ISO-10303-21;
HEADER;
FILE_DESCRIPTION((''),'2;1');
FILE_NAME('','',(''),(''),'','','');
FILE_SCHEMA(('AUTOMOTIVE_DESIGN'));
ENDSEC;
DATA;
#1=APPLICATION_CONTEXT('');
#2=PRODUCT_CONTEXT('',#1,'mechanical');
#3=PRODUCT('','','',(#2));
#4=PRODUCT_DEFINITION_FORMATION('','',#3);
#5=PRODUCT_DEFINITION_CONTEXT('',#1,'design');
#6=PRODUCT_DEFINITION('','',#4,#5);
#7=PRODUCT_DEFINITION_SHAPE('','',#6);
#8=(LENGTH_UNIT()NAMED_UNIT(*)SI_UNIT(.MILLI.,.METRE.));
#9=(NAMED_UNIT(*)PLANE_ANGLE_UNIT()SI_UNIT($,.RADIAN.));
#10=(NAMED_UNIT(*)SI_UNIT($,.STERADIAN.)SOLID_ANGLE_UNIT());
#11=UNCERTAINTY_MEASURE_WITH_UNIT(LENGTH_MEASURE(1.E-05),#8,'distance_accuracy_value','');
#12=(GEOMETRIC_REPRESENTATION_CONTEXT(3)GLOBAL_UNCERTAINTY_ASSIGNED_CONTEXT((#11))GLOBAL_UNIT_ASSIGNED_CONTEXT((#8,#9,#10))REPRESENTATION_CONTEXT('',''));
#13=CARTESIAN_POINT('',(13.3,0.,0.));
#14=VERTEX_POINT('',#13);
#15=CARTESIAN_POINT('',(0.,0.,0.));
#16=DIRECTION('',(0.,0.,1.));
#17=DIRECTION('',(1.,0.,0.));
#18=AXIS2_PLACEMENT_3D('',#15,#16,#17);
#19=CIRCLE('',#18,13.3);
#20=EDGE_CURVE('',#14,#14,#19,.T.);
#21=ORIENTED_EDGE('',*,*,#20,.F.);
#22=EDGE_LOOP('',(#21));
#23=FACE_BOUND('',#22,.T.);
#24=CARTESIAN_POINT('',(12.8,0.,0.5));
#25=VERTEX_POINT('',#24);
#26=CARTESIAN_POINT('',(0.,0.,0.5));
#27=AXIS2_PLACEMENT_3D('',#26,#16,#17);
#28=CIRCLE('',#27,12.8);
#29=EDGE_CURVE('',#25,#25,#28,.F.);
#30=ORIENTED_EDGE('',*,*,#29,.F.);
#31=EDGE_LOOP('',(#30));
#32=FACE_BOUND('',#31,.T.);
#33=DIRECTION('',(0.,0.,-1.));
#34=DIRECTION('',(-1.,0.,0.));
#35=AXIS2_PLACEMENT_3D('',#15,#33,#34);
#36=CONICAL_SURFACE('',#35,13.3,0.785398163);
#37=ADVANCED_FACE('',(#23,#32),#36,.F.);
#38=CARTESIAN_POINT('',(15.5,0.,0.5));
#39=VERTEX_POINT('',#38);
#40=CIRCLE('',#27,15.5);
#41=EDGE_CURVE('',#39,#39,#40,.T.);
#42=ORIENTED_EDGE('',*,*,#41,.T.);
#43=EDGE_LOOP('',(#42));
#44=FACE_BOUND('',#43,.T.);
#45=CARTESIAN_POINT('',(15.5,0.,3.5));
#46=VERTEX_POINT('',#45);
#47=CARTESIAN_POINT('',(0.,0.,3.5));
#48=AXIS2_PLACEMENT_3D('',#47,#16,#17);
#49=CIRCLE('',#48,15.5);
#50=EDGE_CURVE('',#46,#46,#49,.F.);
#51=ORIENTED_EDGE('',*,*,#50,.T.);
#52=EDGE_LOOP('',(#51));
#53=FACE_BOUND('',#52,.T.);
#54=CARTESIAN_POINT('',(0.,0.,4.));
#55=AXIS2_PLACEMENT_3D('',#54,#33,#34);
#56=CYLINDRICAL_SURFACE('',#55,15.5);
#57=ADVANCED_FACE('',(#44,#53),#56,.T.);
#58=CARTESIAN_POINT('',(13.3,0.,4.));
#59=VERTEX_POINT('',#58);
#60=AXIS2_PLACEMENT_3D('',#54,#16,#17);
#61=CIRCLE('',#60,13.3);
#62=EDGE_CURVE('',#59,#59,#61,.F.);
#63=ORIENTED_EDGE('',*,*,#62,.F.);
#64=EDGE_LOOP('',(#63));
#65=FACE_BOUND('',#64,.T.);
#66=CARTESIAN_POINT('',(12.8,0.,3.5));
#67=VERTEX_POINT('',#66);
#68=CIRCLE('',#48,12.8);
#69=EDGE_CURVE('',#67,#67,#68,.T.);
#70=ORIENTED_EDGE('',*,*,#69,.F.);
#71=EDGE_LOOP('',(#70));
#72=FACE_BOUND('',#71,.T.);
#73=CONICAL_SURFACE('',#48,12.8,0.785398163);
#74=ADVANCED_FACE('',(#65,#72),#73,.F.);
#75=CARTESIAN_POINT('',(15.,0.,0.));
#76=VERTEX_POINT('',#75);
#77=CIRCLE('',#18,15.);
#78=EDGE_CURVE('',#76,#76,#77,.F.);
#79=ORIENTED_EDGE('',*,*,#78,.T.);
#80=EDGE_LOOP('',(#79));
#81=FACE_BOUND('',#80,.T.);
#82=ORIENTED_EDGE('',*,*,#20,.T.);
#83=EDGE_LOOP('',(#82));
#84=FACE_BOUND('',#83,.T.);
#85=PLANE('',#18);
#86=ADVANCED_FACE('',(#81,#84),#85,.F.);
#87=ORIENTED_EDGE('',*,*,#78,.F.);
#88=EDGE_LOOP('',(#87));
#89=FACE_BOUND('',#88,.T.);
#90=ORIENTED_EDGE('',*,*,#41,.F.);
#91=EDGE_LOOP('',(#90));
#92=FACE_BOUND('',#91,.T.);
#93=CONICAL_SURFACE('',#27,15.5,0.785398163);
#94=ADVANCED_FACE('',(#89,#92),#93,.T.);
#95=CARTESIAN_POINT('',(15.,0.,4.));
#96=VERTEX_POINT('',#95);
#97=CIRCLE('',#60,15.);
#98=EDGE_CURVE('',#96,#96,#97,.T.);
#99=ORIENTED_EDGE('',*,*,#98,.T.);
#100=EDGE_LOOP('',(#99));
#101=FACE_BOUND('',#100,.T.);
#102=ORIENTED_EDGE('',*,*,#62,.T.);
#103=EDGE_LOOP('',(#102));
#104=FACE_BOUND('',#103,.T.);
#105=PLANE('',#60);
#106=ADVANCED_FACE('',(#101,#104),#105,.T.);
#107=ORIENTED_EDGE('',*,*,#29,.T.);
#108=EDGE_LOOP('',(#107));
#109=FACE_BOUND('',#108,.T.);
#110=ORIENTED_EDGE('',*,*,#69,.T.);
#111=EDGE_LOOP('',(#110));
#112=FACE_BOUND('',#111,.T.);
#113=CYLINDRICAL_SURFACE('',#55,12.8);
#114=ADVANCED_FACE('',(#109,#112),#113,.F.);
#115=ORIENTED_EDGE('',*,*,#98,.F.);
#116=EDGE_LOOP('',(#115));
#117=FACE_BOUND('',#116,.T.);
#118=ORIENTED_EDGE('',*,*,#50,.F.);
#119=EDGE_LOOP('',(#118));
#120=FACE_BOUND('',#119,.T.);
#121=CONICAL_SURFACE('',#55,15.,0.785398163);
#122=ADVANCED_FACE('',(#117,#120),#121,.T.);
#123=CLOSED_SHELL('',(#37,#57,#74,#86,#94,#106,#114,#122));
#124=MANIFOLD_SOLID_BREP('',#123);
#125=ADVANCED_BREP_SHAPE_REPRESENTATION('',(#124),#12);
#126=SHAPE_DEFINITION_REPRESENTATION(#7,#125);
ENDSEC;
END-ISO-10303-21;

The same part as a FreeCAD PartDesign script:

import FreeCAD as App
import Part
import Sketcher

V = App.Vector


def edges_at(feature, points):
    """Names of the edges that pass closest to the given points."""
    edges = feature.Shape.Edges
    near = lambda p: min(range(len(edges)), key=lambda i: edges[i].distToShape(Part.Vertex(*p))[0])
    return sorted({f"Edge{near(p) + 1}" for p in points})

doc = App.newDocument("Part")
body = doc.addObject("PartDesign::Body", "Body")

# Sketch on XY plane
sketch1 = body.newObject("Sketcher::SketchObject", "Sketch")
sketch1.AttachmentSupport = (doc.getObject("XY_Plane"), [""])
sketch1.MapMode = "FlatFace"
sketch1.addGeometry(Part.Circle(V(0, 0, 0), V(0, 0, 1), 16), False)
sketch1.addGeometry(Part.Circle(V(0, 0, 0), V(0, 0, 1), 13), False)
sketch1.addConstraint(Sketcher.Constraint("Coincident", 0, 3, -1, 1))
sketch1.addConstraint(Sketcher.Constraint("Coincident", 1, 3, -1, 1))
sketch1.addConstraint(Sketcher.Constraint("Diameter", 0, 31.0))
sketch1.addConstraint(Sketcher.Constraint("Diameter", 1, 25.6))
pad1 = body.newObject("PartDesign::Pad", "Pad")
pad1.Profile = sketch1
pad1.Length = 4
doc.recompute()

chamfer = body.newObject("PartDesign::Chamfer", "Chamfer")
chamfer.Base = (pad1, edges_at(pad1, [
    (-15.5, 0, 0),
    (-15.5, 0, 4),
    (-12.8, 0, 0),
    (-12.8, 0, 4),
]))
chamfer.Size = 0.5

doc.recompute()
